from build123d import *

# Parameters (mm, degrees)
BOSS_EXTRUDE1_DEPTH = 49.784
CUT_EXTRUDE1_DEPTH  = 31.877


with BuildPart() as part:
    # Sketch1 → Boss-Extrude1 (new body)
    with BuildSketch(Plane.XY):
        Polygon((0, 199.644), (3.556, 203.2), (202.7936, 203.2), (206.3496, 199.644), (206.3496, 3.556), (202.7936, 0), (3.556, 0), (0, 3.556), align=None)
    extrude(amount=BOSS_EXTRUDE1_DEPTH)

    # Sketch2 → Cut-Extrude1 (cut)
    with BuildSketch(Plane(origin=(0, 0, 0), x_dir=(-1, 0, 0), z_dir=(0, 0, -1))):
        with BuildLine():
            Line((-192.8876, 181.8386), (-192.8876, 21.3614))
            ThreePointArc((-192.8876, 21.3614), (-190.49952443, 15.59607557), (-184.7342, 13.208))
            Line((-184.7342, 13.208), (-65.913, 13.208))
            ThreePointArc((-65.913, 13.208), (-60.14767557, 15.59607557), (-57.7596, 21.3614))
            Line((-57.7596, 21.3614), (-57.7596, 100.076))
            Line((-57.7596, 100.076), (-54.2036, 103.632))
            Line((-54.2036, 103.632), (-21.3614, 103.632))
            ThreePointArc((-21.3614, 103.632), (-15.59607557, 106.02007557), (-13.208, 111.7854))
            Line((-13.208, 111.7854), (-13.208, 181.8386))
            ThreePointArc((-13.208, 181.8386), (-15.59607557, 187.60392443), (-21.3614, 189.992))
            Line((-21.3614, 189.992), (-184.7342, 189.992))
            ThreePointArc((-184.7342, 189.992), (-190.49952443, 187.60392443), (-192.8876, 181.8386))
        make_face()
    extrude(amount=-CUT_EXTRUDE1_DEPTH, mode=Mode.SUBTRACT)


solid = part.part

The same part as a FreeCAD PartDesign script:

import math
import FreeCAD as App
import Part
import Sketcher

V = App.Vector
Q = App.Units.Quantity


def add_polygon(sketch, points):
    """Adds a closed chain of lines whose ends are joined by coincident constraints."""
    first, n = sketch.GeometryCount, len(points)
    for a, b in zip(points, points[1:] + points[:1]):
        sketch.addGeometry(Part.LineSegment(App.Vector(*a, 0), App.Vector(*b, 0)), False)
    for i in range(n):
        sketch.addConstraint(Sketcher.Constraint("Coincident", first + i, 2, first + (i + 1) % n, 1))

doc = App.newDocument("Part")
body = doc.addObject("PartDesign::Body", "Body")

sketch1 = body.newObject("Sketcher::SketchObject", "Sketch")
sketch1.AttachmentSupport = (doc.getObject("XY_Plane"), [""])
sketch1.MapMode = "FlatFace"
add_polygon(sketch1, [(4, 203), (0, 200), (0, 4), (4, 0), (203, 0), (206, 4), (206, 200), (203, 203)])
sketch1.addConstraint(Sketcher.Constraint("Vertical", 1))
sketch1.addConstraint(Sketcher.Constraint("Horizontal", 3))
sketch1.addConstraint(Sketcher.Constraint("Vertical", 5))
sketch1.addConstraint(Sketcher.Constraint("Horizontal", 7))
sketch1.addConstraint(Sketcher.Constraint("PointOnObject", 0, 2, -2))
sketch1.addConstraint(Sketcher.Constraint("PointOnObject", 2, 2, -1))
sketch1.addConstraint(Sketcher.Constraint("Perpendicular", 0, 2))
sketch1.addConstraint(Sketcher.Constraint("Perpendicular", 2, 4))
sketch1.addConstraint(Sketcher.Constraint("Perpendicular", 4, 6))
sketch1.addConstraint(Sketcher.Constraint("Horizontal", 1, 2, 4, 2))
sketch1.addConstraint(Sketcher.Constraint("Horizontal", 0, 2, 5, 2))
sketch1.addConstraint(Sketcher.Constraint("Vertical", 3, 2, 6, 2))
sketch1.addConstraint(Sketcher.Constraint("Vertical", 2, 2, 7, 2))
sketch1.addConstraint(Sketcher.Constraint("DistanceY", -1, 1, 6, 2, Q("8 in")))
sketch1.addConstraint(Sketcher.Constraint("DistanceY", 1, 2, 1, 1, Q("7.72 in")))
sketch1.addConstraint(Sketcher.Constraint("DistanceX", 3, 1, 3, 2, Q("7.844 in")))
pad1 = body.newObject("PartDesign::Pad", "Pad")
pad1.Profile = sketch1
pad1.Length = Q("1.96 in")

sketch2 = body.newObject("Sketcher::SketchObject", "Sketch001")
sketch2.AttachmentSupport = (doc.getObject("XY_Plane"), [""])
sketch2.MapMode = "FlatFace"
sketch2.addGeometry(Part.LineSegment(V(193, 182, 0), V(193, 21, 0)), False)
sketch2.addGeometry(Part.ArcOfCircle(Part.Circle(V(185, 21, 0), V(0, 0, 1), 8), math.radians(-90), math.radians(0)), False)
sketch2.addGeometry(Part.LineSegment(V(185, 13, 0), V(66, 13, 0)), False)
sketch2.addGeometry(Part.ArcOfCircle(Part.Circle(V(66, 21, 0), V(0, 0, 1), 8), math.radians(180), math.radians(270)), False)
sketch2.addGeometry(Part.LineSegment(V(58, 21, 0), V(58, 100, 0)), False)
sketch2.addGeometry(Part.LineSegment(V(58, 100, 0), V(54, 104, 0)), False)
sketch2.addGeometry(Part.LineSegment(V(54, 104, 0), V(21, 104, 0)), False)
sketch2.addGeometry(Part.ArcOfCircle(Part.Circle(V(21, 112, 0), V(0, 0, 1), 8), math.radians(180), math.radians(270)), False)
sketch2.addGeometry(Part.LineSegment(V(13, 112, 0), V(13, 182, 0)), False)
sketch2.addGeometry(Part.ArcOfCircle(Part.Circle(V(21, 182, 0), V(0, 0, 1), 8), math.radians(90), math.radians(180)), False)
sketch2.addGeometry(Part.LineSegment(V(21, 190, 0), V(185, 190, 0)), False)
sketch2.addGeometry(Part.ArcOfCircle(Part.Circle(V(185, 182, 0), V(0, 0, 1), 8), math.radians(0), math.radians(90)), False)
sketch2.addConstraint(Sketcher.Constraint("Tangent", 0, 2, 1, 2))
sketch2.addConstraint(Sketcher.Constraint("Tangent", 1, 1, 2, 1))
sketch2.addConstraint(Sketcher.Constraint("Tangent", 2, 2, 3, 2))
sketch2.addConstraint(Sketcher.Constraint("Tangent", 3, 1, 4, 1))
sketch2.addConstraint(Sketcher.Constraint("Coincident", 4, 2, 5, 1))
sketch2.addConstraint(Sketcher.Constraint("Coincident", 5, 2, 6, 1))
sketch2.addConstraint(Sketcher.Constraint("Tangent", 6, 2, 7, 2))
sketch2.addConstraint(Sketcher.Constraint("Tangent", 7, 1, 8, 1))
sketch2.addConstraint(Sketcher.Constraint("Tangent", 8, 2, 9, 2))
sketch2.addConstraint(Sketcher.Constraint("Tangent", 9, 1, 10, 1))
sketch2.addConstraint(Sketcher.Constraint("Tangent", 10, 2, 11, 2))
sketch2.addConstraint(Sketcher.Constraint("Tangent", 11, 1, 0, 1))
sketch2.addConstraint(Sketcher.Constraint("Vertical", 0))
sketch2.addConstraint(Sketcher.Constraint("Horizontal", 2))
sketch2.addConstraint(Sketcher.Constraint("Vertical", 4))
sketch2.addConstraint(Sketcher.Constraint("Horizontal", 6))
sketch2.addConstraint(Sketcher.Constraint("Vertical", 8))
sketch2.addConstraint(Sketcher.Constraint("Horizontal", 10))
sketch2.addConstraint(Sketcher.Constraint("Equal", 1, 3))
sketch2.addConstraint(Sketcher.Constraint("Equal", 3, 7))
sketch2.addConstraint(Sketcher.Constraint("Equal", 7, 9))
sketch2.addConstraint(Sketcher.Constraint("Equal", 9, 11))
sketch2.addConstraint(Sketcher.Constraint("Angle", 5, Q("135 deg")))
sketch2.addConstraint(Sketcher.Constraint("Radius", 1, Q("0.321 in")))
sketch2.addConstraint(Sketcher.Constraint("DistanceY", 6, 2, 9, 1, Q("3.4 in")))
sketch2.addConstraint(Sketcher.Constraint("DistanceX", 2, 2, 2, 1, Q("4.678 in")))
sketch2.addConstraint(Sketcher.Constraint("DistanceX", 6, 2, 6, 1, Q("1.293 in")))
sketch2.addConstraint(Sketcher.Constraint("DistanceX", 10, 1, 10, 2, Q("6.432 in")))
sketch2.addConstraint(Sketcher.Constraint("DistanceY", 0, 2, 0, 1, Q("6.318 in")))
sketch2.addConstraint(Sketcher.Constraint("DistanceY", -1, 1, 1, 1, Q("0.52 in")))
sketch2.addConstraint(Sketcher.Constraint("DistanceX", -1, 1, 7, 1, Q("0.52 in")))
pocket1 = body.newObject("PartDesign::Pocket", "Pocket")
pocket1.Profile = sketch2
pocket1.Length = Q("1.255 in")
pocket1.Reversed = True

doc.recompute()
